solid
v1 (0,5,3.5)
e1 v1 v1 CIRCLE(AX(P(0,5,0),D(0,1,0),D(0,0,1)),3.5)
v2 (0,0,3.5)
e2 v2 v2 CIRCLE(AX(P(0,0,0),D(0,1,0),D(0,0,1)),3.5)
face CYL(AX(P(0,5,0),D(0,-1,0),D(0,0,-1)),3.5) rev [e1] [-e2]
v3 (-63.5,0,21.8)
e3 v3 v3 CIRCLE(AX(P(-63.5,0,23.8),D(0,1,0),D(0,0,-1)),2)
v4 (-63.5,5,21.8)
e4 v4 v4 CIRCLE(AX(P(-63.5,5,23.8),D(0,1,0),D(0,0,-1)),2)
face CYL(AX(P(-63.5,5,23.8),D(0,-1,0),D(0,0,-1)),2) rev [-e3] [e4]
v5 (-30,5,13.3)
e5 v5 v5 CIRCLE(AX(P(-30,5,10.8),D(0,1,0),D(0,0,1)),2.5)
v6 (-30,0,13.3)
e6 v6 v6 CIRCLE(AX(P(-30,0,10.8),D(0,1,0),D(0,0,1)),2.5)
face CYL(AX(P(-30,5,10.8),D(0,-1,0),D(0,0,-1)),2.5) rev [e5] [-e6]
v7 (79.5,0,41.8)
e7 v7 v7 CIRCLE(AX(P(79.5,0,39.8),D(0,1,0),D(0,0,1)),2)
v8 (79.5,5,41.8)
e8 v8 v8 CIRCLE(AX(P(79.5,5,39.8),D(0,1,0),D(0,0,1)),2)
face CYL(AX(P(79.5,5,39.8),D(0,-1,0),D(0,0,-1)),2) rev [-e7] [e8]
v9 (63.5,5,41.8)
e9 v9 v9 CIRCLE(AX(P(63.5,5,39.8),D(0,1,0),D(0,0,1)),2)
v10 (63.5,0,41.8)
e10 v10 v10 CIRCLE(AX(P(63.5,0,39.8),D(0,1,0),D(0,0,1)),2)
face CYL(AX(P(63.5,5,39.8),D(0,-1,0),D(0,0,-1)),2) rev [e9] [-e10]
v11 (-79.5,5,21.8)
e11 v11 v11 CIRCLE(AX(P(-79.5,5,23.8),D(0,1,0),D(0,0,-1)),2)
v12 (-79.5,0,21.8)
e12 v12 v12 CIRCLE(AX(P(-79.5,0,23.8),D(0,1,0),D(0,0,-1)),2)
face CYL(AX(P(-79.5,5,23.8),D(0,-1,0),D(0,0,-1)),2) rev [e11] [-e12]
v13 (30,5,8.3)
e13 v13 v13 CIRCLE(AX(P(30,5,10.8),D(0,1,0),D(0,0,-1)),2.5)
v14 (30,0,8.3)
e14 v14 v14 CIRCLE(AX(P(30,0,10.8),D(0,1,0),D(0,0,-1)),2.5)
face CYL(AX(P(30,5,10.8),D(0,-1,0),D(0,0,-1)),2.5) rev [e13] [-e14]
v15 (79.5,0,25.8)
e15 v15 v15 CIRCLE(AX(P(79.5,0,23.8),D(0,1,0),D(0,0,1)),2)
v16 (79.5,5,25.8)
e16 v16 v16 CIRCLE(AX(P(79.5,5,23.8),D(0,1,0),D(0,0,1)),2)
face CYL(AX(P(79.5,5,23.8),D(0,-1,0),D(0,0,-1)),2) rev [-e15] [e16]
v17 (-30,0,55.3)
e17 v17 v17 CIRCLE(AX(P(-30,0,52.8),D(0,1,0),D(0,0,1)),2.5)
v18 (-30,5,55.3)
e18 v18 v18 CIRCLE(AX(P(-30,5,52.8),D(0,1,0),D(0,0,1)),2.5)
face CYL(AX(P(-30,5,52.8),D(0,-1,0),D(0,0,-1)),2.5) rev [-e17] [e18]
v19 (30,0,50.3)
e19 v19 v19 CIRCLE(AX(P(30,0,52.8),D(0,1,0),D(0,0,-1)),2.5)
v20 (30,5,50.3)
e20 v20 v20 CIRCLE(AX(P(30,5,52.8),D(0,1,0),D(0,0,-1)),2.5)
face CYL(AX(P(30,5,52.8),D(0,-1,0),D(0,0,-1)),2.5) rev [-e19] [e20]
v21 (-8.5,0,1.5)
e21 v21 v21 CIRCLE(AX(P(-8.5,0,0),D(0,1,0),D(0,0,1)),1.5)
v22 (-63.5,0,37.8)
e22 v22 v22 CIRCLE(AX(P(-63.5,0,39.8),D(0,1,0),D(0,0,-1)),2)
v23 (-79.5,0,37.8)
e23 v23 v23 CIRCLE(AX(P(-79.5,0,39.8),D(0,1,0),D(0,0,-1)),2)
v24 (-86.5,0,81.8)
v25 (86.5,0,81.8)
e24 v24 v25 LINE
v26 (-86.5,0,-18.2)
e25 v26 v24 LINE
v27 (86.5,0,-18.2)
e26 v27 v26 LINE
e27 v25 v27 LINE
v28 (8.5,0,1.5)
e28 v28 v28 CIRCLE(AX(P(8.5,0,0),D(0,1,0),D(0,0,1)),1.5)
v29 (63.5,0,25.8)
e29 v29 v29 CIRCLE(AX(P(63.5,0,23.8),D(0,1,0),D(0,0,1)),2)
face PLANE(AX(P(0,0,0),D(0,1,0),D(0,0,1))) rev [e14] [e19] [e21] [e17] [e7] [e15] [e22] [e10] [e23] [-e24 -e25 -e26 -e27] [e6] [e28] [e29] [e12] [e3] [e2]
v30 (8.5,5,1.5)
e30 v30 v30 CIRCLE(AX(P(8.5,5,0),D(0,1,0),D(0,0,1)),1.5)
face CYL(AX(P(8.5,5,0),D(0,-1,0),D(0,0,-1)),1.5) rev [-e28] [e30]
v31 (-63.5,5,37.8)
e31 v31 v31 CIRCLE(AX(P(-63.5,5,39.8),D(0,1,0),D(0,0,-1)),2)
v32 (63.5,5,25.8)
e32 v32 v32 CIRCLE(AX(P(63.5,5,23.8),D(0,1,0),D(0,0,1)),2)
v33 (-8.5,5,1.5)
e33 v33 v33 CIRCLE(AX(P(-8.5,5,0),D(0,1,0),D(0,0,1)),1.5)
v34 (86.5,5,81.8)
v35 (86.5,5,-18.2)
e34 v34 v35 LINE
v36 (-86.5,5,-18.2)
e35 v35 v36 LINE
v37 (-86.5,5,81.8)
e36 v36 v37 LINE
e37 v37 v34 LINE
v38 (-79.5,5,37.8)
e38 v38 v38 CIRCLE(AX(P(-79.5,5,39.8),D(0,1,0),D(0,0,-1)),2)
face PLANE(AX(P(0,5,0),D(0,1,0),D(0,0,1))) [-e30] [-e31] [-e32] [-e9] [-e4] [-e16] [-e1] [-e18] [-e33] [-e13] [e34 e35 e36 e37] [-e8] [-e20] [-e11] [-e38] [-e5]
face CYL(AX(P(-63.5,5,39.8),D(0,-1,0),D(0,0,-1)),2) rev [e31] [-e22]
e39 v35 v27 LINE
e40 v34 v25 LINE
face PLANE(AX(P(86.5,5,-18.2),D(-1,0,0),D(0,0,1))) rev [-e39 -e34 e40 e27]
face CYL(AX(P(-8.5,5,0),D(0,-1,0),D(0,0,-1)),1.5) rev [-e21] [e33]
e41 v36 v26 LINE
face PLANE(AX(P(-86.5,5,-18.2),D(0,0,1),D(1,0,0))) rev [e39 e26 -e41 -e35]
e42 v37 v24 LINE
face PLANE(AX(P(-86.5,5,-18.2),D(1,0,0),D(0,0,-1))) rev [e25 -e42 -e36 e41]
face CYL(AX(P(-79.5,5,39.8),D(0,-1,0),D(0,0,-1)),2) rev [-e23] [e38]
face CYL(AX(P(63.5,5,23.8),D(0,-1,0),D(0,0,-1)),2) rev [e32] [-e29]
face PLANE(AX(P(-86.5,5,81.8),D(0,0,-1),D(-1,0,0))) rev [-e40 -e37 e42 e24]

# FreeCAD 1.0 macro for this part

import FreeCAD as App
import Part
import Sketcher

doc = App.newDocument("Part")
body = doc.addObject("PartDesign::Body", "Body")

sketch1 = body.newObject("Sketcher::SketchObject", "Sketch")
sketch1.AttachmentSupport = (doc.getObject("XZ_Plane"), [""])
sketch1.MapMode = "FlatFace"
sketch1.addGeometry(Part.LineSegment(App.Vector(-86.5, -18.2, 0), App.Vector(-86.5, 81.8, 0)), False)
sketch1.addGeometry(Part.LineSegment(App.Vector(-86.5, 81.8, 0), App.Vector(86.5, 81.8, 0)), False)
sketch1.addGeometry(Part.LineSegment(App.Vector(86.5, 81.8, 0), App.Vector(86.5, -18.2, 0)), False)
sketch1.addGeometry(Part.LineSegment(App.Vector(86.5, -18.2, 0), App.Vector(-86.5, -18.2, 0)), False)
sketch1.addGeometry(Part.Circle(App.Vector(-30, 52.8, 0), App.Vector(0, 0, 1), 2.5), False)
sketch1.addGeometry(Part.Circle(App.Vector(-79.5, 39.8, 0), App.Vector(0, 0, 1), 2), False)
sketch1.addGeometry(Part.Circle(App.Vector(-63.5, 39.8, 0), App.Vector(0, 0, 1), 2), False)
sketch1.addGeometry(Part.Circle(App.Vector(30, 52.8, 0), App.Vector(0, 0, 1), 2.5), False)
sketch1.addGeometry(Part.Circle(App.Vector(63.5, 39.8, 0), App.Vector(0, 0, 1), 2), False)
sketch1.addGeometry(Part.Circle(App.Vector(79.5, 39.8, 0), App.Vector(0, 0, 1), 2), False)
sketch1.addGeometry(Part.Circle(App.Vector(-79.5, 23.8, 0), App.Vector(0, 0, 1), 2), False)
sketch1.addGeometry(Part.Circle(App.Vector(-63.5, 23.8, 0), App.Vector(0, 0, 1), 2), False)
sketch1.addGeometry(Part.Circle(App.Vector(-30, 10.8, 0), App.Vector(0, 0, 1), 2.5), False)
sketch1.addGeometry(Part.Circle(App.Vector(-8.5, 0, 0), App.Vector(0, 0, 1), 1.5), False)
sketch1.addGeometry(Part.Circle(App.Vector(63.5, 23.8, 0), App.Vector(0, 0, 1), 2), False)
sketch1.addGeometry(Part.Circle(App.Vector(79.5, 23.8, 0), App.Vector(0, 0, 1), 2), False)
sketch1.addGeometry(Part.Circle(App.Vector(30, 10.8, 0), App.Vector(0, 0, 1), 2.5), False)
sketch1.addGeometry(Part.Circle(App.Vector(0, 0, 0), App.Vector(0, 0, 1), 3.5), False)
sketch1.addGeometry(Part.Circle(App.Vector(8.5, 0, 0), App.Vector(0, 0, 1), 1.5), False)
sketch1.addConstraint(Sketcher.Constraint("Coincident", 0, 2, 1, 1))
sketch1.addConstraint(Sketcher.Constraint("Coincident", 1, 2, 2, 1))
sketch1.addConstraint(Sketcher.Constraint("Coincident", 2, 2, 3, 1))
sketch1.addConstraint(Sketcher.Constraint("Coincident", 3, 2, 0, 1))
sketch1.addConstraint(Sketcher.Constraint("Vertical", 0))
sketch1.addConstraint(Sketcher.Constraint("Horizontal", 1))
sketch1.addConstraint(Sketcher.Constraint("Vertical", 2))
sketch1.addConstraint(Sketcher.Constraint("Horizontal", 3))
sketch1.addConstraint(Sketcher.Constraint("Coincident", 17, 3, -1, 1))
sketch1.addConstraint(Sketcher.Constraint("Equal", 5, 6))
sketch1.addConstraint(Sketcher.Constraint("Equal", 4, 7))
sketch1.addConstraint(Sketcher.Constraint("Equal", 6, 8))
sketch1.addConstraint(Sketcher.Constraint("Equal", 8, 9))
sketch1.addConstraint(Sketcher.Constraint("Equal", 9, 10))
sketch1.addConstraint(Sketcher.Constraint("Equal", 10, 11))
sketch1.addConstraint(Sketcher.Constraint("Equal", 7, 12))
sketch1.addConstraint(Sketcher.Constraint("Equal", 11, 14))
sketch1.addConstraint(Sketcher.Constraint("Equal", 14, 15))
sketch1.addConstraint(Sketcher.Constraint("Equal", 12, 16))
sketch1.addConstraint(Sketcher.Constraint("Equal", 13, 18))
sketch1.addConstraint(Sketcher.Constraint("Symmetric", 13, 3, 18, 3, -1, 1))
sketch1.addConstraint(Sketcher.Constraint("Symmetric", 4, 3, 7, 3, -2))
sketch1.addConstraint(Sketcher.Constraint("Symmetric", 6, 3, 8, 3, -2))
sketch1.addConstraint(Sketcher.Constraint("Symmetric", 5, 3, 9, 3, -2))
sketch1.addConstraint(Sketcher.Constraint("Symmetric", 11, 3, 14, 3, -2))
sketch1.addConstraint(Sketcher.Constraint("Symmetric", 10, 3, 15, 3, -2))
sketch1.addConstraint(Sketcher.Constraint("Symmetric", 12, 3, 16, 3, -2))
sketch1.addConstraint(Sketcher.Constraint("PointOnObject", 13, 3, -1))
sketch1.addConstraint(Sketcher.Constraint("Horizontal", 5, 3, 6, 3))
sketch1.addConstraint(Sketcher.Constraint("Horizontal", 10, 3, 11, 3))
sketch1.addConstraint(Sketcher.Constraint("Vertical", 5, 3, 10, 3))
sketch1.addConstraint(Sketcher.Constraint("Vertical", 6, 3, 11, 3))
sketch1.addConstraint(Sketcher.Constraint("Vertical", 4, 3, 12, 3))
sketch1.addConstraint(Sketcher.Constraint("Diameter", 4, 5.0))
sketch1.addConstraint(Sketcher.Constraint("Diameter", 5, 4.0))
sketch1.addConstraint(Sketcher.Constraint("Diameter", 13, 3.0))
sketch1.addConstraint(Sketcher.Constraint("Diameter", 17, 7.0))
sketch1.addConstraint(Sketcher.Constraint("DistanceX", 1, 1, 1, 2, 173.0))
sketch1.addConstraint(Sketcher.Constraint("DistanceY", 0, 1, 0, 2, 100.0))
sketch1.addConstraint(Sketcher.Constraint("DistanceX", 4, 3, -1, 1, 30.0))
sketch1.addConstraint(Sketcher.Constraint("DistanceY", 5, 3, 4, 3, 13.0))
sketch1.addConstraint(Sketcher.Constraint("DistanceX", 5, 3, 6, 3, 16.0))
sketch1.addConstraint(Sketcher.Constraint("DistanceX", 6, 3, 8, 3, 127.0))
sketch1.addConstraint(Sketcher.Constraint("DistanceY", 10, 3, 5, 3, 16.0))
sketch1.addConstraint(Sketcher.Constraint("DistanceY", 12, 3, 11, 3, 13.0))
sketch1.addConstraint(Sketcher.Constraint("DistanceX", 11, 3, 13, 3, 55.0))
sketch1.addConstraint(Sketcher.Constraint("DistanceX", 0, 2, 5, 3, 7.0))
sketch1.addConstraint(Sketcher.Constraint("DistanceY", 5, 3, 0, 2, 42.0))
sketch1.addConstraint(Sketcher.Constraint("DistanceY", -1, 1, 4, 3, 52.8))
pad1 = body.newObject("PartDesign::Pad", "Pad")
pad1.Profile = sketch1
pad1.Length = 5
pad1.Reversed = True

doc.recompute()
